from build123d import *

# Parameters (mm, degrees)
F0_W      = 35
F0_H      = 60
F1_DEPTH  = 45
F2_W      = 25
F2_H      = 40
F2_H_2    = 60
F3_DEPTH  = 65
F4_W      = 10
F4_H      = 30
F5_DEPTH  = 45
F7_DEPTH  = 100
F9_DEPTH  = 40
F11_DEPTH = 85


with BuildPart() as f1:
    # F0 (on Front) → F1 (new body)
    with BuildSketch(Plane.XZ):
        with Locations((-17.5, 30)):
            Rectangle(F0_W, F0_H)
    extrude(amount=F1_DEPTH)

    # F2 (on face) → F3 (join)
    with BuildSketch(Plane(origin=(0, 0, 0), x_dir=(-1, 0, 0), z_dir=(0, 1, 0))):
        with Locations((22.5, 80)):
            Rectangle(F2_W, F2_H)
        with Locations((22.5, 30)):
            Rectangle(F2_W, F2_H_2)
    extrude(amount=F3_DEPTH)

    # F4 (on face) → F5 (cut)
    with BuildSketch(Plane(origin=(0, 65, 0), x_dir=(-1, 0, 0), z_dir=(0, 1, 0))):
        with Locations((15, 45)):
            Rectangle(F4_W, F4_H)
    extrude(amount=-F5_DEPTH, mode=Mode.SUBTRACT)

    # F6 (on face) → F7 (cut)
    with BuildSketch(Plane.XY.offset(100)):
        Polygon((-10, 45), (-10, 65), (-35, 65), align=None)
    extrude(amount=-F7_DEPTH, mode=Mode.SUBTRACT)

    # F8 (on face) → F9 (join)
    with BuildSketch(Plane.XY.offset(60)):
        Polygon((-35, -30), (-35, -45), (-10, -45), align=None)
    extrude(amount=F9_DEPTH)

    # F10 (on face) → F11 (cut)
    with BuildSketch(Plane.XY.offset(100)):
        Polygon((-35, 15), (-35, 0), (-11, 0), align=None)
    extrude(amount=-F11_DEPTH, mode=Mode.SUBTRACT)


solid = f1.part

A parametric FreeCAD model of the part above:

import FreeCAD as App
import Part
import Sketcher

V = App.Vector
Q = App.Units.Quantity

doc = App.newDocument("Part")
body = doc.addObject("PartDesign::Body", "Body")

# Sketch on XZ plane
sketch1 = body.newObject("Sketcher::SketchObject", "Sketch")
sketch1.AttachmentSupport = (doc.getObject("XZ_Plane"), [""])
sketch1.MapMode = "FlatFace"
sketch1.addGeometry(Part.LineSegment(V(-35, 60, 0), V(-35, 0, 0)), False)
sketch1.addGeometry(Part.LineSegment(V(-35, 0, 0), V(0, 0, 0)), False)
sketch1.addGeometry(Part.LineSegment(V(0, 0, 0), V(0, 60, 0)), False)
sketch1.addGeometry(Part.LineSegment(V(0, 60, 0), V(-35, 60, 0)), False)
sketch1.addConstraint(Sketcher.Constraint("Coincident", 0, 2, 1, 1))
sketch1.addConstraint(Sketcher.Constraint("Coincident", 1, 2, 2, 1))
sketch1.addConstraint(Sketcher.Constraint("Coincident", 2, 2, 3, 1))
sketch1.addConstraint(Sketcher.Constraint("Coincident", 3, 2, 0, 1))
sketch1.addConstraint(Sketcher.Constraint("Vertical", 0))
sketch1.addConstraint(Sketcher.Constraint("Horizontal", 1))
sketch1.addConstraint(Sketcher.Constraint("Vertical", 2))
sketch1.addConstraint(Sketcher.Constraint("Horizontal", 3))
sketch1.addConstraint(Sketcher.Constraint("Coincident", 1, 2, -1, 1))
sketch1.addConstraint(Sketcher.Constraint("DistanceX", 1, 1, 1, 2, Q("35 mm")))
sketch1.addConstraint(Sketcher.Constraint("DistanceY", 0, 2, 0, 1, Q("60 mm")))
pad1 = body.newObject("PartDesign::Pad", "Pad")
pad1.Profile = sketch1
pad1.Length = 45

# Sketch on XZ plane
sketch2 = body.newObject("Sketcher::SketchObject", "Sketch001")
sketch2.AttachmentSupport = (doc.getObject("XZ_Plane"), [""])
sketch2.MapMode = "FlatFace"
sketch2.addGeometry(Part.LineSegment(V(-10, 100, 0), V(-10, 0, 0)), False)
sketch2.addGeometry(Part.LineSegment(V(-10, 0, 0), V(-35, 0, 0)), False)
sketch2.addGeometry(Part.LineSegment(V(-35, 0, 0), V(-35, 100, 0)), False)
sketch2.addGeometry(Part.LineSegment(V(-35, 100, 0), V(-10, 100, 0)), False)
sketch2.addConstraint(Sketcher.Constraint("Coincident", 0, 2, 1, 1))
sketch2.addConstraint(Sketcher.Constraint("Coincident", 1, 2, 2, 1))
sketch2.addConstraint(Sketcher.Constraint("Coincident", 2, 2, 3, 1))
sketch2.addConstraint(Sketcher.Constraint("Coincident", 3, 2, 0, 1))
sketch2.addConstraint(Sketcher.Constraint("Vertical", 0))
sketch2.addConstraint(Sketcher.Constraint("Horizontal", 1))
sketch2.addConstraint(Sketcher.Constraint("Vertical", 2))
sketch2.addConstraint(Sketcher.Constraint("Horizontal", 3))
sketch2.addConstraint(Sketcher.Constraint("PointOnObject", 0, 2, -1))
sketch2.addConstraint(Sketcher.Constraint("DistanceX", 1, 2, 1, 1, Q("25 mm")))
sketch2.addConstraint(Sketcher.Constraint("DistanceY", 0, 2, 0, 1, Q("100 mm")))
sketch2.addConstraint(Sketcher.Constraint("DistanceX", 0, 2, -1, 1, Q("10 mm")))
pad2 = body.newObject("PartDesign::Pad", "Pad001")
pad2.Profile = sketch2
pad2.Length = 65
pad2.Reversed = True

# Sketch on XZ plane
sketch3 = body.newObject("Sketcher::SketchObject", "Sketch002")
sketch3.AttachmentSupport = (doc.getObject("XZ_Plane"), [""])
sketch3.MapMode = "FlatFace"
sketch3.AttachmentOffset = App.Placement(V(0, 0, -65), App.Rotation())
sketch3.addGeometry(Part.LineSegment(V(-10, 60, 0), V(-10, 30, 0)), False)
sketch3.addGeometry(Part.LineSegment(V(-10, 30, 0), V(-20, 30, 0)), False)
sketch3.addGeometry(Part.LineSegment(V(-20, 30, 0), V(-20, 60, 0)), False)
sketch3.addGeometry(Part.LineSegment(V(-20, 60, 0), V(-10, 60, 0)), False)
sketch3.addConstraint(Sketcher.Constraint("Coincident", 0, 2, 1, 1))
sketch3.addConstraint(Sketcher.Constraint("Coincident", 1, 2, 2, 1))
sketch3.addConstraint(Sketcher.Constraint("Coincident", 2, 2, 3, 1))
sketch3.addConstraint(Sketcher.Constraint("Coincident", 3, 2, 0, 1))
sketch3.addConstraint(Sketcher.Constraint("Vertical", 0))
sketch3.addConstraint(Sketcher.Constraint("Horizontal", 1))
sketch3.addConstraint(Sketcher.Constraint("Vertical", 2))
sketch3.addConstraint(Sketcher.Constraint("Horizontal", 3))
sketch3.addConstraint(Sketcher.Constraint("DistanceX", 1, 2, 1, 1, Q("10 mm")))
sketch3.addConstraint(Sketcher.Constraint("DistanceY", 0, 2, 0, 1, Q("30 mm")))
sketch3.addConstraint(Sketcher.Constraint("DistanceX", 0, 2, -1, 1, Q("10 mm")))
sketch3.addConstraint(Sketcher.Constraint("DistanceY", -1, 1, 0, 2, Q("30 mm")))
pocket1 = body.newObject("PartDesign::Pocket", "Pocket")
pocket1.Profile = sketch3
pocket1.Length = 45
pocket1.Reversed = True

# Sketch on XY plane
sketch4 = body.newObject("Sketcher::SketchObject", "Sketch003")
sketch4.AttachmentSupport = (doc.getObject("XY_Plane"), [""])
sketch4.MapMode = "FlatFace"
sketch4.AttachmentOffset = App.Placement(V(0, 0, 100), App.Rotation())
sketch4.addGeometry(Part.LineSegment(V(-10, 45, 0), V(-10, 65, 0)), False)
sketch4.addGeometry(Part.LineSegment(V(-10, 65, 0), V(-35, 65, 0)), False)
sketch4.addGeometry(Part.LineSegment(V(-35, 65, 0), V(-10, 45, 0)), False)
sketch4.addConstraint(Sketcher.Constraint("Coincident", 0, 2, 1, 1))
sketch4.addConstraint(Sketcher.Constraint("Coincident", 1, 2, 2, 1))
sketch4.addConstraint(Sketcher.Constraint("Coincident", 2, 2, 0, 1))
sketch4.addConstraint(Sketcher.Constraint("Vertical", 0))
sketch4.addConstraint(Sketcher.Constraint("Horizontal", 1))
sketch4.addConstraint(Sketcher.Constraint("DistanceX", 1, 2, 1, 1, Q("25 mm")))
sketch4.addConstraint(Sketcher.Constraint("DistanceY", 0, 1, 0, 2, Q("20 mm")))
sketch4.addConstraint(Sketcher.Constraint("DistanceX", 0, 2, -1, 1, Q("10 mm")))
sketch4.addConstraint(Sketcher.Constraint("DistanceY", -1, 1, 0, 2, Q("65 mm")))
pocket2 = body.newObject("PartDesign::Pocket", "Pocket001")
pocket2.Profile = sketch4
pocket2.Length = 100

# Sketch on XY plane
sketch5 = body.newObject("Sketcher::SketchObject", "Sketch004")
sketch5.AttachmentSupport = (doc.getObject("XY_Plane"), [""])
sketch5.MapMode = "FlatFace"
sketch5.AttachmentOffset = App.Placement(V(0, 0, 60), App.Rotation())
sketch5.addGeometry(Part.LineSegment(V(-35, -30, 0), V(-35, -45, 0)), False)
sketch5.addGeometry(Part.LineSegment(V(-35, -45, 0), V(-10, -45, 0)), False)
sketch5.addGeometry(Part.LineSegment(V(-10, -45, 0), V(-35, -30, 0)), False)
sketch5.addConstraint(Sketcher.Constraint("Coincident", 0, 2, 1, 1))
sketch5.addConstraint(Sketcher.Constraint("Coincident", 1, 2, 2, 1))
sketch5.addConstraint(Sketcher.Constraint("Coincident", 2, 2, 0, 1))
sketch5.addConstraint(Sketcher.Constraint("Vertical", 0))
sketch5.addConstraint(Sketcher.Constraint("Horizontal", 1))
sketch5.addConstraint(Sketcher.Constraint("DistanceX", 1, 1, 1, 2, Q("25 mm")))
sketch5.addConstraint(Sketcher.Constraint("DistanceY", 0, 2, 0, 1, Q("15 mm")))
sketch5.addConstraint(Sketcher.Constraint("DistanceX", 0, 2, -1, 1, Q("35 mm")))
sketch5.addConstraint(Sketcher.Constraint("DistanceY", 0, 2, -1, 1, Q("45 mm")))
pad3 = body.newObject("PartDesign::Pad", "Pad002")
pad3.Profile = sketch5
pad3.Length = 40

# Sketch on XY plane
sketch6 = body.newObject("Sketcher::SketchObject", "Sketch005")
sketch6.AttachmentSupport = (doc.getObject("XY_Plane"), [""])
sketch6.MapMode = "FlatFace"
sketch6.AttachmentOffset = App.Placement(V(0, 0, 100), App.Rotation())
sketch6.addGeometry(Part.LineSegment(V(-35, 15, 0), V(-35, 0, 0)), False)
sketch6.addGeometry(Part.LineSegment(V(-35, 0, 0), V(-11, 0, 0)), False)
sketch6.addGeometry(Part.LineSegment(V(-11, 0, 0), V(-35, 15, 0)), False)
sketch6.addConstraint(Sketcher.Constraint("Coincident", 0, 2, 1, 1))
sketch6.addConstraint(Sketcher.Constraint("Coincident", 1, 2, 2, 1))
sketch6.addConstraint(Sketcher.Constraint("Coincident", 2, 2, 0, 1))
sketch6.addConstraint(Sketcher.Constraint("Vertical", 0))
sketch6.addConstraint(Sketcher.Constraint("Horizontal", 1))
sketch6.addConstraint(Sketcher.Constraint("PointOnObject", 0, 2, -1))
sketch6.addConstraint(Sketcher.Constraint("DistanceX", 1, 1, 1, 2, Q("24 mm")))
sketch6.addConstraint(Sketcher.Constraint("DistanceY", 0, 2, 0, 1, Q("15 mm")))
sketch6.addConstraint(Sketcher.Constraint("DistanceX", 0, 2, -1, 1, Q("35 mm")))
pocket3 = body.newObject("PartDesign::Pocket", "Pocket002")
pocket3.Profile = sketch6
pocket3.Length = 85

doc.recompute()
